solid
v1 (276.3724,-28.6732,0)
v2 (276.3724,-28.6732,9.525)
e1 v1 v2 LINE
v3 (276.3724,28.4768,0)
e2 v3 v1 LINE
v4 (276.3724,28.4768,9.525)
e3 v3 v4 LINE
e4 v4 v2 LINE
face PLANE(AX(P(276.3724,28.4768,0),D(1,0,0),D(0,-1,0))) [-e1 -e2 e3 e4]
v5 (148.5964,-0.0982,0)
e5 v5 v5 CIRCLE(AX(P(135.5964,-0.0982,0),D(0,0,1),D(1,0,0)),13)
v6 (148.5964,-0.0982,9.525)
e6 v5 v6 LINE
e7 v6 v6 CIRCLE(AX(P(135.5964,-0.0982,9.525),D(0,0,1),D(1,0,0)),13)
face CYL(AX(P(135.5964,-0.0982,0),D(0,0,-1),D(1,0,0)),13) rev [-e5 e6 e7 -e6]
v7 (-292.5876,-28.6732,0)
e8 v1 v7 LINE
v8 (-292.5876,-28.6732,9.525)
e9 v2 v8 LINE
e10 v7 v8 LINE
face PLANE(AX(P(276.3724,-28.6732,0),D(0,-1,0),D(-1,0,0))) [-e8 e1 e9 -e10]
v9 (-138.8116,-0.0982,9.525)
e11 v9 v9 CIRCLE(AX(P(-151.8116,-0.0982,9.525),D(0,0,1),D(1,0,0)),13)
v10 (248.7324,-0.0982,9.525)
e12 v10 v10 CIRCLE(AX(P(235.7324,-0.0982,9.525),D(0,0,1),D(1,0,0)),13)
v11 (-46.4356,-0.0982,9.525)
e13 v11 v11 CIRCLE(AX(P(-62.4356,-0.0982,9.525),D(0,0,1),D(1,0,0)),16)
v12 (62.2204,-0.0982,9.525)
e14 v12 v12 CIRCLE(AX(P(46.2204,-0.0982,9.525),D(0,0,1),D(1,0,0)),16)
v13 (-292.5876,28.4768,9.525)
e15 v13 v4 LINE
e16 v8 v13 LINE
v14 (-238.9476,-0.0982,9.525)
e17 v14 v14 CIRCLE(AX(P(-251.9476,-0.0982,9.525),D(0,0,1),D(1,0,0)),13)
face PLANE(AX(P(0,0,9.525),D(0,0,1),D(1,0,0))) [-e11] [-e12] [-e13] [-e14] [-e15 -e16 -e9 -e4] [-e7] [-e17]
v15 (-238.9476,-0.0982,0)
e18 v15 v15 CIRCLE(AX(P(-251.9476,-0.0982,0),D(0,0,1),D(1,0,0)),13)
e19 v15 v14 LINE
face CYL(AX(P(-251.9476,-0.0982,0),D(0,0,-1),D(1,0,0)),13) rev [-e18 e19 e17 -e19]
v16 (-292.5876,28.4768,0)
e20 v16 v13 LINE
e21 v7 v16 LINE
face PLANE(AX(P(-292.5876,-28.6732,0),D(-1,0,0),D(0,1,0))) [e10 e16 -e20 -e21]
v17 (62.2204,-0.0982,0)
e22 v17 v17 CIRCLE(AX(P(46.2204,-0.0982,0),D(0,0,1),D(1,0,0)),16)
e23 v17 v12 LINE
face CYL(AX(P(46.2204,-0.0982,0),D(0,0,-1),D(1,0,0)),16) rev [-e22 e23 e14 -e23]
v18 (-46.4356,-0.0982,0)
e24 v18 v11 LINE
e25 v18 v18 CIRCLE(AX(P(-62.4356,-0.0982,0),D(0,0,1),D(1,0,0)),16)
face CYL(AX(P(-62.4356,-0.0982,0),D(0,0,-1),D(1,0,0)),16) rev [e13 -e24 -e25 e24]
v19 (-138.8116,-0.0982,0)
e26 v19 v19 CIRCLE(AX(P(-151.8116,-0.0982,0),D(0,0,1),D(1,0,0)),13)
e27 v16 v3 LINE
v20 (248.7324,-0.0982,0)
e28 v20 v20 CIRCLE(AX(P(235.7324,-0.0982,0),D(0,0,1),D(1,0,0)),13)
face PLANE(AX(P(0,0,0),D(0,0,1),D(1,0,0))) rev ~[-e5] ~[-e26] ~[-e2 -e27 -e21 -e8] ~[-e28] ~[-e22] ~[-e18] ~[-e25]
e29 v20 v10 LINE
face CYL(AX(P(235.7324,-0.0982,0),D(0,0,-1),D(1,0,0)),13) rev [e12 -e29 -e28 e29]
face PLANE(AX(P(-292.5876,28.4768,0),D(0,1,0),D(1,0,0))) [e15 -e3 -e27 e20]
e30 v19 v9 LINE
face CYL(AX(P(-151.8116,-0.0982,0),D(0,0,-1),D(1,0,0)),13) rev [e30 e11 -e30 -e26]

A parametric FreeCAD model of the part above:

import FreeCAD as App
import Part
import Sketcher
from FreeCAD import Vector
Q = App.Units.Quantity

doc = App.newDocument("Part")
body = doc.addObject("PartDesign::Body", "Body")

sketch1 = body.newObject("Sketcher::SketchObject", "Sketch")
sketch1.AttachmentSupport = (doc.getObject("XY_Plane"), [""])
sketch1.MapMode = "FlatFace"
sketch1.addGeometry(Part.LineSegment(Vector(276, 28, 0), Vector(-293, 28, 0)), False)
sketch1.addGeometry(Part.LineSegment(Vector(-293, 28, 0), Vector(-293, -29, 0)), False)
sketch1.addGeometry(Part.LineSegment(Vector(-293, -29, 0), Vector(276, -29, 0)), False)
sketch1.addGeometry(Part.LineSegment(Vector(276, -29, 0), Vector(276, 28, 0)), False)
sketch1.addGeometry(Part.Circle(Vector(-252, 0, 0), Vector(0, 0, 1), 13), False)
sketch1.addGeometry(Part.Circle(Vector(-152, 0, 0), Vector(0, 0, 1), 13), False)
sketch1.addGeometry(Part.Circle(Vector(-62, 0, 0), Vector(0, 0, 1), 16), False)
sketch1.addGeometry(Part.Circle(Vector(46, 0, 0), Vector(0, 0, 1), 16), False)
sketch1.addGeometry(Part.Circle(Vector(136, 0, 0), Vector(0, 0, 1), 13), False)
sketch1.addGeometry(Part.Circle(Vector(236, 0, 0), Vector(0, 0, 1), 13), False)
sketch1.addConstraint(Sketcher.Constraint("Coincident", 0, 2, 1, 1))
sketch1.addConstraint(Sketcher.Constraint("Coincident", 1, 2, 2, 1))
sketch1.addConstraint(Sketcher.Constraint("Coincident", 2, 2, 3, 1))
sketch1.addConstraint(Sketcher.Constraint("Coincident", 3, 2, 0, 1))
sketch1.addConstraint(Sketcher.Constraint("Horizontal", 0))
sketch1.addConstraint(Sketcher.Constraint("Vertical", 1))
sketch1.addConstraint(Sketcher.Constraint("Horizontal", 2))
sketch1.addConstraint(Sketcher.Constraint("Vertical", 3))
sketch1.addConstraint(Sketcher.Constraint("Equal", 4, 5))
sketch1.addConstraint(Sketcher.Constraint("Equal", 6, 7))
sketch1.addConstraint(Sketcher.Constraint("Equal", 5, 8))
sketch1.addConstraint(Sketcher.Constraint("Equal", 8, 9))
sketch1.addConstraint(Sketcher.Constraint("Horizontal", 4, 3, 5, 3))
sketch1.addConstraint(Sketcher.Constraint("Horizontal", 5, 3, 6, 3))
sketch1.addConstraint(Sketcher.Constraint("Horizontal", 6, 3, 7, 3))
sketch1.addConstraint(Sketcher.Constraint("Horizontal", 7, 3, 8, 3))
sketch1.addConstraint(Sketcher.Constraint("Horizontal", 8, 3, 9, 3))
sketch1.addConstraint(Sketcher.Constraint("DistanceX", 0, 2, 0, 1, Q("22.4 in")))
sketch1.addConstraint(Sketcher.Constraint("DistanceY", 1, 2, 1, 1, Q("2.25 in")))
sketch1.addConstraint(Sketcher.Constraint("DistanceX", 0, 2, 4, 3, Q("1.6 in")))
sketch1.addConstraint(Sketcher.Constraint("DistanceX", 9, 3, 2, 2, Q("1.6 in")))
sketch1.addConstraint(Sketcher.Constraint("Diameter", 4, 26.0))
sketch1.addConstraint(Sketcher.Constraint("Diameter", 6, 32.0))
sketch1.addConstraint(Sketcher.Constraint("DistanceX", 0, 2, 6, 3, Q("9.0611 in")))
sketch1.addConstraint(Sketcher.Constraint("DistanceX", 7, 3, 2, 2, Q("9.0611 in")))
sketch1.addConstraint(Sketcher.Constraint("DistanceX", 0, 2, 5, 3, 140.776))
sketch1.addConstraint(Sketcher.Constraint("DistanceX", 8, 3, 2, 2, 140.776))
sketch1.addConstraint(Sketcher.Constraint("DistanceY", 4, 3, 0, 2, Q("1.125 in")))
sketch1.addConstraint(Sketcher.Constraint("DistanceX", 4, 3, -1, 1, Q("9.9192 in")))
sketch1.addConstraint(Sketcher.Constraint("DistanceY", 4, 3, -1, 1, 0.0982))
pad1 = body.newObject("PartDesign::Pad", "Pad")
pad1.Profile = sketch1
pad1.Length = Q("0.375 in")

doc.recompute()
